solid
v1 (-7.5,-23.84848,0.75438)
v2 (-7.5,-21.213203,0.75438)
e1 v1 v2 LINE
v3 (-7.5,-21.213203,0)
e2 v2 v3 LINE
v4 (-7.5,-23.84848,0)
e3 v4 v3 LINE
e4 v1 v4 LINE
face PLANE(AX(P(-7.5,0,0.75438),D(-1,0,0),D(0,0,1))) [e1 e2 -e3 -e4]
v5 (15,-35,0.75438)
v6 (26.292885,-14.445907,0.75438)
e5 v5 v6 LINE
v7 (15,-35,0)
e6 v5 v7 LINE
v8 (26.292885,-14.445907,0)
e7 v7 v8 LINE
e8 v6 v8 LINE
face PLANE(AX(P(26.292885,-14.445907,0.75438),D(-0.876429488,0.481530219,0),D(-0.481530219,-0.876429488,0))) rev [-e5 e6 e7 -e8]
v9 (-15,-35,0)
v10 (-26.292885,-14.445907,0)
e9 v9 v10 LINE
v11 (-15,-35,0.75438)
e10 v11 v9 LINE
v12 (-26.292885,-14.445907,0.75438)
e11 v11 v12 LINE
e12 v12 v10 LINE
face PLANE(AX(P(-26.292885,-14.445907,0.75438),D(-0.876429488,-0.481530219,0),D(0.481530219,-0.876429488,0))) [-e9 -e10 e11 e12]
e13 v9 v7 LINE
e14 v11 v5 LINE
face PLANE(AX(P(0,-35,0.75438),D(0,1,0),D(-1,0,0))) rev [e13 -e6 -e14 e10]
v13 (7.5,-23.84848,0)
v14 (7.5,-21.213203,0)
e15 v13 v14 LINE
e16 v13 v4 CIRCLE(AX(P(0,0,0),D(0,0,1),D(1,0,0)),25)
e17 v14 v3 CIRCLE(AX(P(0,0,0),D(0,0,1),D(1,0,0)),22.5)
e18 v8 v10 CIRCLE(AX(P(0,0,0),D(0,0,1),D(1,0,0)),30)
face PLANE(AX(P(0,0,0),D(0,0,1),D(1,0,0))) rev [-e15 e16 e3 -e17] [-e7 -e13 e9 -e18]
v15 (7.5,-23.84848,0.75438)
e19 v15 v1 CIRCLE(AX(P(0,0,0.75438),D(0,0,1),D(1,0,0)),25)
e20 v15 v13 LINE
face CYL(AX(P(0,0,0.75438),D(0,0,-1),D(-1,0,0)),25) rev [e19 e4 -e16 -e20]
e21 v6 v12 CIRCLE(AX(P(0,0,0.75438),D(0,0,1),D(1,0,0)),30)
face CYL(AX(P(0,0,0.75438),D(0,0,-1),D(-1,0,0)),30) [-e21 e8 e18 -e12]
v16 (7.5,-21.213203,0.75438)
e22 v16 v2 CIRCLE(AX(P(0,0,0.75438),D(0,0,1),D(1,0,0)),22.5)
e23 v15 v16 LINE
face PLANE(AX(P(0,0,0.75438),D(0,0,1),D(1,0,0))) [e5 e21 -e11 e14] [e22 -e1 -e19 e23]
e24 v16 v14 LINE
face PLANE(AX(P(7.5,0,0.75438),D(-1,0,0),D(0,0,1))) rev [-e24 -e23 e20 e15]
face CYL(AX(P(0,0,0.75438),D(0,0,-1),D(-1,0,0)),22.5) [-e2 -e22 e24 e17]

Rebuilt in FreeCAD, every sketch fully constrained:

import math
import FreeCAD as App
import Part
import Sketcher

doc = App.newDocument("Part")
params = doc.addObject("Spreadsheet::Sheet", "Params")
for row, (alias, value) in enumerate([
    ("sketch1_radius", "30 mm"),
    ("sketch1_radius2", "25 mm"),
    ("sketch1_radius3", "22.5 mm"),
    ("sketch1_width", "30 mm"),
    ("pad1_length", "0.75438 mm"),
], start=1):
    params.set(f"A{row}", alias)
    params.set(f"B{row}", "=" + value)
    params.setAlias(f"B{row}", alias)

body = doc.addObject("PartDesign::Body", "Body")

# Sketch on XY plane
sketch1 = doc.addObject("Sketcher::SketchObject", "Sketch")
body.addObject(sketch1)
sketch1.AttachmentSupport = (doc.XY_Plane, [""])
sketch1.MapMode = "FlatFace"
sketch1.addGeometry([
    Part.LineSegment(App.Vector(-15, -35, 0), App.Vector(15, -35, 0)),  # 0
    Part.LineSegment(App.Vector(15, -35, 0), App.Vector(26.292885, -14.445907, 0)),  # 1
    Part.ArcOfCircle(Part.Circle(App.Vector(0, 0, 0), App.Vector(0, 0, 1), 30), math.radians(-28.785391), math.radians(208.785391)),  # 2
    Part.LineSegment(App.Vector(-26.292885, -14.445907, 0), App.Vector(-15, -35, 0)),  # 3
    Part.LineSegment(App.Vector(-7.5, -21.213203, 0), App.Vector(-7.5, -23.84848, 0)),  # 4
    Part.ArcOfCircle(Part.Circle(App.Vector(0, 0, 0), App.Vector(0, 0, 1), 25), math.radians(-72.542397), math.radians(252.542397)),  # 5
    Part.LineSegment(App.Vector(7.5, -23.84848, 0), App.Vector(7.5, -21.213203, 0)),  # 6
    Part.ArcOfCircle(Part.Circle(App.Vector(0, 0, 0), App.Vector(0, 0, 1), 22.5), math.radians(-70.528779), math.radians(250.528779)),  # 7
], False)
sketch1.addConstraint([
    Sketcher.Constraint("Coincident", 0, 2, 1, 1),
    Sketcher.Constraint("Tangent", 1, 2, 2, 1),
    Sketcher.Constraint("Tangent", 2, 2, 3, 1),
    Sketcher.Constraint("Coincident", 3, 2, 0, 1),
    Sketcher.Constraint("Coincident", 4, 2, 5, 2),
    Sketcher.Constraint("Coincident", 5, 1, 6, 1),
    Sketcher.Constraint("Coincident", 6, 2, 7, 1),
    Sketcher.Constraint("Coincident", 7, 2, 4, 1),
    Sketcher.Constraint("Horizontal", 0),
    Sketcher.Constraint("Vertical", 4),
    Sketcher.Constraint("Vertical", 6),
    Sketcher.Constraint("Coincident", 2, 3, -1, 1),
    Sketcher.Constraint("Coincident", 5, 3, -1, 1),
    Sketcher.Constraint("Coincident", 7, 3, -1, 1),
    Sketcher.Constraint("Horizontal", 1, 2, 2, 2),
    Sketcher.Constraint("Horizontal", 4, 2, 5, 1),
    Sketcher.Constraint("Radius", 2, 30.0),
    Sketcher.Constraint("Radius", 5, 25.0),
    Sketcher.Constraint("Radius", 7, 22.5),
    Sketcher.Constraint("DistanceX", 0, 1, 0, 2, 30.0),
    Sketcher.Constraint("DistanceY", 0, 2, -1, 1, 35.0),
    Sketcher.Constraint("DistanceX", 4, 2, 5, 1, 15.0),
])
sketch1.setExpression("Constraints[16]", "Params.sketch1_radius")
sketch1.setExpression("Constraints[17]", "Params.sketch1_radius2")
sketch1.setExpression("Constraints[18]", "Params.sketch1_radius3")
sketch1.setExpression("Constraints[19]", "Params.sketch1_width")
pad1 = doc.addObject("PartDesign::Pad", "Pad")
body.addObject(pad1)
pad1.Profile = sketch1
pad1.setExpression("Length", "Params.pad1_length")

doc.recompute()
